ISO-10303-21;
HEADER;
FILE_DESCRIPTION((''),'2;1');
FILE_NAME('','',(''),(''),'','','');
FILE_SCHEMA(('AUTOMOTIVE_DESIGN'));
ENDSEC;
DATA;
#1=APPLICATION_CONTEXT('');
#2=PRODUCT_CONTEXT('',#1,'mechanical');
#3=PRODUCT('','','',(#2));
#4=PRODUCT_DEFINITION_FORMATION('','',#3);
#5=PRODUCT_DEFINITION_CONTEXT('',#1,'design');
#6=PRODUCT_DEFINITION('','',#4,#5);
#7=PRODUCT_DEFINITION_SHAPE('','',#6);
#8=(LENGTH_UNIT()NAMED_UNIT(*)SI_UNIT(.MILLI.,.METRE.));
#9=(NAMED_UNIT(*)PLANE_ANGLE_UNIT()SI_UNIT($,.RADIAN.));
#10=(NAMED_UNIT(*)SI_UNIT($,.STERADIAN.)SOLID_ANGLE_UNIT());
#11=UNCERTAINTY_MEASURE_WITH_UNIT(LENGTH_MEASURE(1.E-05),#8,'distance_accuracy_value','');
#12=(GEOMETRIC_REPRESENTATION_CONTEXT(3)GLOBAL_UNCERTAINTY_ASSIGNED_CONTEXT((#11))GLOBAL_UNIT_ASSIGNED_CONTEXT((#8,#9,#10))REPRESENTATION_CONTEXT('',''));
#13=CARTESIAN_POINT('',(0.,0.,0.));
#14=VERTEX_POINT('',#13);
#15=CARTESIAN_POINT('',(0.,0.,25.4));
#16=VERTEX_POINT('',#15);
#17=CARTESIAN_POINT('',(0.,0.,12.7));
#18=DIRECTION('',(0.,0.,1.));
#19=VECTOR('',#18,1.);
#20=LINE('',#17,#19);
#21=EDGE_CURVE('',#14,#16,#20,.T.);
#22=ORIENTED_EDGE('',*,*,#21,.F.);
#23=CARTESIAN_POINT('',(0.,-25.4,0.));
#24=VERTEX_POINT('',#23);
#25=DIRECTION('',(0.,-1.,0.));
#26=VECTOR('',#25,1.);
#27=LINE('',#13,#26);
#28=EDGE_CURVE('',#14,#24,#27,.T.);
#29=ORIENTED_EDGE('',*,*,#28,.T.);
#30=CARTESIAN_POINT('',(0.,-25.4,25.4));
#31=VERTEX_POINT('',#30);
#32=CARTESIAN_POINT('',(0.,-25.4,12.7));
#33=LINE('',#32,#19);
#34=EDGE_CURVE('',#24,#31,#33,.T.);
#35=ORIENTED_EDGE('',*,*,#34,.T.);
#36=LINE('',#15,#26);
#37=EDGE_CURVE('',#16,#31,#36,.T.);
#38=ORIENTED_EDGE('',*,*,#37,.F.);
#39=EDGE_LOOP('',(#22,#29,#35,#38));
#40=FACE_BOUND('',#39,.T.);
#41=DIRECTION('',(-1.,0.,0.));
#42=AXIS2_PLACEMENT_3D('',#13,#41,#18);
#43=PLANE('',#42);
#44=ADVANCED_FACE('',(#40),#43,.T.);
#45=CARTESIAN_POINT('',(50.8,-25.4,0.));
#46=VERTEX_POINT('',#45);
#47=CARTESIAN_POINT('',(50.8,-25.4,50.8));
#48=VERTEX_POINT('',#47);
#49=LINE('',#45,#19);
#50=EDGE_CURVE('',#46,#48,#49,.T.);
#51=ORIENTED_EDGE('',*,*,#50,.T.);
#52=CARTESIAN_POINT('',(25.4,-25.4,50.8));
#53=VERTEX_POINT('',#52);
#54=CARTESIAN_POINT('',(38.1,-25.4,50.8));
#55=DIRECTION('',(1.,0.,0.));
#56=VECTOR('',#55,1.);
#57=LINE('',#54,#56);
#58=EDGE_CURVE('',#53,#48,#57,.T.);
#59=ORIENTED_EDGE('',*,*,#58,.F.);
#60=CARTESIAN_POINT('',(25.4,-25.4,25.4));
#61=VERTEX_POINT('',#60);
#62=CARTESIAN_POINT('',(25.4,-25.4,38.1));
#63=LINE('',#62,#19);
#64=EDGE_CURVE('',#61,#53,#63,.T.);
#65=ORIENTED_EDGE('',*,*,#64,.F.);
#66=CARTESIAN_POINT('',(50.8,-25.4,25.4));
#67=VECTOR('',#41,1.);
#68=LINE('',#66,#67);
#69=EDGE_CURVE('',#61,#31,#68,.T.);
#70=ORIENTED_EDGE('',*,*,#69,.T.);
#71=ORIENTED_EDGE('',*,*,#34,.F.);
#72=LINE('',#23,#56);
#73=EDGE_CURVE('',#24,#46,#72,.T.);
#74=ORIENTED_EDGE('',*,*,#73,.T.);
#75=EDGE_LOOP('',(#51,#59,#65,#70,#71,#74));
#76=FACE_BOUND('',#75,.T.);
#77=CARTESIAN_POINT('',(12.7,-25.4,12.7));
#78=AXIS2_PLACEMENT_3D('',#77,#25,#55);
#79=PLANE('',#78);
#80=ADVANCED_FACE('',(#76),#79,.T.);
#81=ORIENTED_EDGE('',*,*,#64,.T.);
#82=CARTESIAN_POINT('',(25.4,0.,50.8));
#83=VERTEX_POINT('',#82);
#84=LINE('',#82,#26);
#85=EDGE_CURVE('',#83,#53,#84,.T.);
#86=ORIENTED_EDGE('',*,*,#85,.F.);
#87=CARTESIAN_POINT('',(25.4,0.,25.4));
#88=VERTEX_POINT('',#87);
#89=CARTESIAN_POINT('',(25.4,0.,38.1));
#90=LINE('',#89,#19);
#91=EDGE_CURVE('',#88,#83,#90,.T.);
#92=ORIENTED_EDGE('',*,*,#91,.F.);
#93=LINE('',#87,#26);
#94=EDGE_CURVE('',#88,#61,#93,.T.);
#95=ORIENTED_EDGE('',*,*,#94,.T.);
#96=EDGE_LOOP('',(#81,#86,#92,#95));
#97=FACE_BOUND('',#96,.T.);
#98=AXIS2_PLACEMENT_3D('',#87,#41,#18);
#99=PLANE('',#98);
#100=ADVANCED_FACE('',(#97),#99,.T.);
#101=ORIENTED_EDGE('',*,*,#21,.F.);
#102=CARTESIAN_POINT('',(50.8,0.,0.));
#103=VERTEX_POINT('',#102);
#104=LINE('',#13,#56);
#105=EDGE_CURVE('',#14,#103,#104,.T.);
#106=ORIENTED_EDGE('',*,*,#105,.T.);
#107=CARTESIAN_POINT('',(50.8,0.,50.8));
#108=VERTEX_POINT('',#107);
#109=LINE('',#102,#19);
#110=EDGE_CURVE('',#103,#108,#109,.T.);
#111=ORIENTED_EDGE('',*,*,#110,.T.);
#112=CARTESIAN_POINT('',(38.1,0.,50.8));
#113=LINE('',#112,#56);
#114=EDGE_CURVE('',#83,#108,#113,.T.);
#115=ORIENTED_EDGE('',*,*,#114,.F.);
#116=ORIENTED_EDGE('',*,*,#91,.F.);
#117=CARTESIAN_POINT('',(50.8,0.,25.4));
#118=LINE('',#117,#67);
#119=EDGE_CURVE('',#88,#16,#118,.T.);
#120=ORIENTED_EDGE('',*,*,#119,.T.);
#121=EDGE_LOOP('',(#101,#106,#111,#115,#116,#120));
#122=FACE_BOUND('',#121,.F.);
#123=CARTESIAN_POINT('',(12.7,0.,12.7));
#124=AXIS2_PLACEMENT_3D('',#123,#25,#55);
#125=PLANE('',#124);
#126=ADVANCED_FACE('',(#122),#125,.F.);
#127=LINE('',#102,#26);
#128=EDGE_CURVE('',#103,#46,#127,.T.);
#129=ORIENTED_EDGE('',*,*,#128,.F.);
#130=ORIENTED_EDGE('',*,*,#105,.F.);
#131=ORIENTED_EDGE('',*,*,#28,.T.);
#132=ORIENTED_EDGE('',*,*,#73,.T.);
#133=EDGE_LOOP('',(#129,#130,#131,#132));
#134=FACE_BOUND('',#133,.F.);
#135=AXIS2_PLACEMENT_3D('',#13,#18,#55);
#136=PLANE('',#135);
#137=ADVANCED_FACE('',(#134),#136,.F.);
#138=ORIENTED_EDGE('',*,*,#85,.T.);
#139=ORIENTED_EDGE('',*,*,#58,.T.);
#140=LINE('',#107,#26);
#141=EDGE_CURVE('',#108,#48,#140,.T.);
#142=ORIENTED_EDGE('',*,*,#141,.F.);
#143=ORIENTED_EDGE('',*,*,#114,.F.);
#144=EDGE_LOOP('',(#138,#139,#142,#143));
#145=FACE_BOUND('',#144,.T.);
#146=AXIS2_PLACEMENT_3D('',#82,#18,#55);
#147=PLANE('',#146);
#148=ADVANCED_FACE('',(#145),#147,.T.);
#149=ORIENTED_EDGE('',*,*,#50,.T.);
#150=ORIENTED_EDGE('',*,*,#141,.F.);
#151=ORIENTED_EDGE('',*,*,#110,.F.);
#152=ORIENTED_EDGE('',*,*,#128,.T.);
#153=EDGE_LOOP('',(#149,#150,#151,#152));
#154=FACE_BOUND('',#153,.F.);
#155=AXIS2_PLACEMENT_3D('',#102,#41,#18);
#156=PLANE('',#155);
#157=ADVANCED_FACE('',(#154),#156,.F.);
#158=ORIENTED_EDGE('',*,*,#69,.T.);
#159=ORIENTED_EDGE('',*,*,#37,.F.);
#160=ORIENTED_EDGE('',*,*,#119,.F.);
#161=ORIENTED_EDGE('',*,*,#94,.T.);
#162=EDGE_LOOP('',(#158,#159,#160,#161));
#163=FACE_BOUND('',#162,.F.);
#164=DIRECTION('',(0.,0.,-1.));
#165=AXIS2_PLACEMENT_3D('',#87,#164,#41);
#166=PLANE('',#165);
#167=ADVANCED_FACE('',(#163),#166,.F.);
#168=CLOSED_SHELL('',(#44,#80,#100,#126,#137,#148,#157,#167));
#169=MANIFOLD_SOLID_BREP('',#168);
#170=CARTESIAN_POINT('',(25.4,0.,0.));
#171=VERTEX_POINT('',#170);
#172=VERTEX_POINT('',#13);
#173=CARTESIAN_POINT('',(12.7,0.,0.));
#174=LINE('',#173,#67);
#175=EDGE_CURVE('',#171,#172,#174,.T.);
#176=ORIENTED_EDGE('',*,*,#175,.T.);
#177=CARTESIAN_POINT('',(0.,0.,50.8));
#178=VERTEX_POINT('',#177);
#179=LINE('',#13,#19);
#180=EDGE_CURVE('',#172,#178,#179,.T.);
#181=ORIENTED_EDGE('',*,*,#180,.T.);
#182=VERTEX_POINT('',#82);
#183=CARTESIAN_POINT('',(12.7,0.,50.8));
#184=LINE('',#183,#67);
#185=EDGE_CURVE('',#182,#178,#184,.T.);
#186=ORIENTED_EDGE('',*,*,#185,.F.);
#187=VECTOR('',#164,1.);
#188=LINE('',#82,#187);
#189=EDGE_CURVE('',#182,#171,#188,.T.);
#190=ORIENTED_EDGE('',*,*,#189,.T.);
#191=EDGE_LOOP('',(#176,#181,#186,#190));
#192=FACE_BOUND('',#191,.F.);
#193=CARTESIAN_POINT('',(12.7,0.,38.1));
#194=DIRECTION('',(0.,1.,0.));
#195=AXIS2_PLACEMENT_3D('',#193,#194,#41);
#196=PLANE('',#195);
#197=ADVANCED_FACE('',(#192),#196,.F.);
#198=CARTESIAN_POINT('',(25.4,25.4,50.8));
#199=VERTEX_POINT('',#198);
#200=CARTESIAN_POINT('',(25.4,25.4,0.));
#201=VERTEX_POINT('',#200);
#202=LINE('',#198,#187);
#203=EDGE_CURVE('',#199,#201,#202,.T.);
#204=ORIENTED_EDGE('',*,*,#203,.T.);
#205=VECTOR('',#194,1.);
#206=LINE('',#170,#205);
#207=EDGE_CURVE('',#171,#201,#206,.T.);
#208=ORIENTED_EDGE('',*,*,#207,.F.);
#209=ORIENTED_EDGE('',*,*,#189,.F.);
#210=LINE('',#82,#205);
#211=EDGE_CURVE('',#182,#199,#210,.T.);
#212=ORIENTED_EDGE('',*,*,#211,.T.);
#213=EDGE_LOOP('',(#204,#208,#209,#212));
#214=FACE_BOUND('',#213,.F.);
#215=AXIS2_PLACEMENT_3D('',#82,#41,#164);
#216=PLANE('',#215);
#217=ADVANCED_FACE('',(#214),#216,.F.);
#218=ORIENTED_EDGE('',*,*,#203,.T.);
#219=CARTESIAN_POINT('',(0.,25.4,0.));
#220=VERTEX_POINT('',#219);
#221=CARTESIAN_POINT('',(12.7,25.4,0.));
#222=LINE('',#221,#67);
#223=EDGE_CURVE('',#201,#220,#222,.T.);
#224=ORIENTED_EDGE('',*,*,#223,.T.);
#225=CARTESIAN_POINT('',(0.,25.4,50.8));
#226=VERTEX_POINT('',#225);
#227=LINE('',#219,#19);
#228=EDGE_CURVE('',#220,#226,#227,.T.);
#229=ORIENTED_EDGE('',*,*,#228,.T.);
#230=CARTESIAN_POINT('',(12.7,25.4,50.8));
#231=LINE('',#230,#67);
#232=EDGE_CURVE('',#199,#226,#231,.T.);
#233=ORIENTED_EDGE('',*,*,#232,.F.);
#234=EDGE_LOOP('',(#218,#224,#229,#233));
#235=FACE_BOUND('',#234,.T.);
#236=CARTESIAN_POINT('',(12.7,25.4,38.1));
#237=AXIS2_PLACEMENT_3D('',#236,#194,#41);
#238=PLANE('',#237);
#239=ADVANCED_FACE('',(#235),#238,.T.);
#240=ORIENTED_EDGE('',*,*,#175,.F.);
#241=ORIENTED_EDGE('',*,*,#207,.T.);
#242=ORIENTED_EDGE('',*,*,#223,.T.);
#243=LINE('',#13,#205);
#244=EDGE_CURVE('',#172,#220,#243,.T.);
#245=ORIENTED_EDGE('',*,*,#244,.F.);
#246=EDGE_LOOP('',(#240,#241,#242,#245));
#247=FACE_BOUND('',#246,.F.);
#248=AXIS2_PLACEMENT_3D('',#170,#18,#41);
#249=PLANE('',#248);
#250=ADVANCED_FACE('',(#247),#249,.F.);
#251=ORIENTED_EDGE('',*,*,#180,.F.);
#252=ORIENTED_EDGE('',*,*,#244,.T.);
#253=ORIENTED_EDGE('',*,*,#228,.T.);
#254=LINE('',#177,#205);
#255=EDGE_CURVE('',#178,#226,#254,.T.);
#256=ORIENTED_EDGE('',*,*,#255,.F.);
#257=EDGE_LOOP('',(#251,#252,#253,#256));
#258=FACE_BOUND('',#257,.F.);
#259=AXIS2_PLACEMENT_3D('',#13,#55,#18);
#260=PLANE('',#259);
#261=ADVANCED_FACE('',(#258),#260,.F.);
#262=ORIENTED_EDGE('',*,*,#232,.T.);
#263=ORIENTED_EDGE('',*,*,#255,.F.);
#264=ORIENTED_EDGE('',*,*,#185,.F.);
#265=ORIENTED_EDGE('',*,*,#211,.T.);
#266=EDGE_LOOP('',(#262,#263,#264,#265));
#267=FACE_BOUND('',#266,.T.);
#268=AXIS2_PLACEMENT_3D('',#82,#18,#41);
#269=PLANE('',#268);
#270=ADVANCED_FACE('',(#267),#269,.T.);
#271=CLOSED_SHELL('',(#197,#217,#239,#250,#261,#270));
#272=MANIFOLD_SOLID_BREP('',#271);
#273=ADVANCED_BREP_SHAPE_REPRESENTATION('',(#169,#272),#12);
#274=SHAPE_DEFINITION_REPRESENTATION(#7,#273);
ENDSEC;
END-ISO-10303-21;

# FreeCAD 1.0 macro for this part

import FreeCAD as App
import Part
import Sketcher
from FreeCAD import Vector
Q = App.Units.Quantity


def add_polygon(sketch, points):
    """Adds a closed chain of lines whose ends are joined by coincident constraints."""
    first, n = sketch.GeometryCount, len(points)
    for a, b in zip(points, points[1:] + points[:1]):
        sketch.addGeometry(Part.LineSegment(App.Vector(*a, 0), App.Vector(*b, 0)), False)
    for i in range(n):
        sketch.addConstraint(Sketcher.Constraint("Coincident", first + i, 2, first + (i + 1) % n, 1))

doc = App.newDocument("Part")
body = doc.addObject("PartDesign::Body", "Body")

sketch1 = body.newObject("Sketcher::SketchObject", "Sketch")
sketch1.AttachmentSupport = (doc.getObject("XZ_Plane"), [""])
sketch1.MapMode = "FlatFace"
add_polygon(sketch1, [(0, 25), (0, 0), (51, 0), (51, 51), (25, 51), (25, 25)])
sketch1.addConstraint([
    Sketcher.Constraint("Vertical", 0),
    Sketcher.Constraint("Horizontal", 1),
    Sketcher.Constraint("Vertical", 2),
    Sketcher.Constraint("Horizontal", 3),
    Sketcher.Constraint("Vertical", 4),
    Sketcher.Constraint("Horizontal", 5),
    Sketcher.Constraint("Coincident", 0, 2, -1, 1),
    Sketcher.Constraint("Equal", 3, 5),
    Sketcher.Constraint("Equal", 5, 0),
    Sketcher.Constraint("Equal", 1, 2),
    Sketcher.Constraint("DistanceX", 1, 1, 1, 2, Q("2 in")),
])
pad1 = body.newObject("PartDesign::Pad", "Pad")
pad1.Profile = sketch1
pad1.Length = Q("1 in")
body2 = doc.addObject("PartDesign::Body", "Body001")

sketch2 = body2.newObject("Sketcher::SketchObject", "Sketch001")
sketch2.AttachmentSupport = (doc.getObject("XZ_Plane001"), [""])
sketch2.MapMode = "FlatFace"
add_polygon(sketch2, [(25, 51), (25, 0), (0, 0), (0, 51)])
sketch2.addConstraint([
    Sketcher.Constraint("Vertical", 0),
    Sketcher.Constraint("Horizontal", 1),
    Sketcher.Constraint("Vertical", 2),
    Sketcher.Constraint("Horizontal", 3),
    Sketcher.Constraint("Coincident", 1, 2, -1, 1),
    Sketcher.Constraint("DistanceX", 1, 2, 1, 1, Q("1 in")),
    Sketcher.Constraint("DistanceY", 0, 2, 0, 1, Q("2 in")),
])
pad2 = body2.newObject("PartDesign::Pad", "Pad001")
pad2.Profile = sketch2
pad2.Length = Q("1 in")
pad2.Reversed = True

doc.recompute()
